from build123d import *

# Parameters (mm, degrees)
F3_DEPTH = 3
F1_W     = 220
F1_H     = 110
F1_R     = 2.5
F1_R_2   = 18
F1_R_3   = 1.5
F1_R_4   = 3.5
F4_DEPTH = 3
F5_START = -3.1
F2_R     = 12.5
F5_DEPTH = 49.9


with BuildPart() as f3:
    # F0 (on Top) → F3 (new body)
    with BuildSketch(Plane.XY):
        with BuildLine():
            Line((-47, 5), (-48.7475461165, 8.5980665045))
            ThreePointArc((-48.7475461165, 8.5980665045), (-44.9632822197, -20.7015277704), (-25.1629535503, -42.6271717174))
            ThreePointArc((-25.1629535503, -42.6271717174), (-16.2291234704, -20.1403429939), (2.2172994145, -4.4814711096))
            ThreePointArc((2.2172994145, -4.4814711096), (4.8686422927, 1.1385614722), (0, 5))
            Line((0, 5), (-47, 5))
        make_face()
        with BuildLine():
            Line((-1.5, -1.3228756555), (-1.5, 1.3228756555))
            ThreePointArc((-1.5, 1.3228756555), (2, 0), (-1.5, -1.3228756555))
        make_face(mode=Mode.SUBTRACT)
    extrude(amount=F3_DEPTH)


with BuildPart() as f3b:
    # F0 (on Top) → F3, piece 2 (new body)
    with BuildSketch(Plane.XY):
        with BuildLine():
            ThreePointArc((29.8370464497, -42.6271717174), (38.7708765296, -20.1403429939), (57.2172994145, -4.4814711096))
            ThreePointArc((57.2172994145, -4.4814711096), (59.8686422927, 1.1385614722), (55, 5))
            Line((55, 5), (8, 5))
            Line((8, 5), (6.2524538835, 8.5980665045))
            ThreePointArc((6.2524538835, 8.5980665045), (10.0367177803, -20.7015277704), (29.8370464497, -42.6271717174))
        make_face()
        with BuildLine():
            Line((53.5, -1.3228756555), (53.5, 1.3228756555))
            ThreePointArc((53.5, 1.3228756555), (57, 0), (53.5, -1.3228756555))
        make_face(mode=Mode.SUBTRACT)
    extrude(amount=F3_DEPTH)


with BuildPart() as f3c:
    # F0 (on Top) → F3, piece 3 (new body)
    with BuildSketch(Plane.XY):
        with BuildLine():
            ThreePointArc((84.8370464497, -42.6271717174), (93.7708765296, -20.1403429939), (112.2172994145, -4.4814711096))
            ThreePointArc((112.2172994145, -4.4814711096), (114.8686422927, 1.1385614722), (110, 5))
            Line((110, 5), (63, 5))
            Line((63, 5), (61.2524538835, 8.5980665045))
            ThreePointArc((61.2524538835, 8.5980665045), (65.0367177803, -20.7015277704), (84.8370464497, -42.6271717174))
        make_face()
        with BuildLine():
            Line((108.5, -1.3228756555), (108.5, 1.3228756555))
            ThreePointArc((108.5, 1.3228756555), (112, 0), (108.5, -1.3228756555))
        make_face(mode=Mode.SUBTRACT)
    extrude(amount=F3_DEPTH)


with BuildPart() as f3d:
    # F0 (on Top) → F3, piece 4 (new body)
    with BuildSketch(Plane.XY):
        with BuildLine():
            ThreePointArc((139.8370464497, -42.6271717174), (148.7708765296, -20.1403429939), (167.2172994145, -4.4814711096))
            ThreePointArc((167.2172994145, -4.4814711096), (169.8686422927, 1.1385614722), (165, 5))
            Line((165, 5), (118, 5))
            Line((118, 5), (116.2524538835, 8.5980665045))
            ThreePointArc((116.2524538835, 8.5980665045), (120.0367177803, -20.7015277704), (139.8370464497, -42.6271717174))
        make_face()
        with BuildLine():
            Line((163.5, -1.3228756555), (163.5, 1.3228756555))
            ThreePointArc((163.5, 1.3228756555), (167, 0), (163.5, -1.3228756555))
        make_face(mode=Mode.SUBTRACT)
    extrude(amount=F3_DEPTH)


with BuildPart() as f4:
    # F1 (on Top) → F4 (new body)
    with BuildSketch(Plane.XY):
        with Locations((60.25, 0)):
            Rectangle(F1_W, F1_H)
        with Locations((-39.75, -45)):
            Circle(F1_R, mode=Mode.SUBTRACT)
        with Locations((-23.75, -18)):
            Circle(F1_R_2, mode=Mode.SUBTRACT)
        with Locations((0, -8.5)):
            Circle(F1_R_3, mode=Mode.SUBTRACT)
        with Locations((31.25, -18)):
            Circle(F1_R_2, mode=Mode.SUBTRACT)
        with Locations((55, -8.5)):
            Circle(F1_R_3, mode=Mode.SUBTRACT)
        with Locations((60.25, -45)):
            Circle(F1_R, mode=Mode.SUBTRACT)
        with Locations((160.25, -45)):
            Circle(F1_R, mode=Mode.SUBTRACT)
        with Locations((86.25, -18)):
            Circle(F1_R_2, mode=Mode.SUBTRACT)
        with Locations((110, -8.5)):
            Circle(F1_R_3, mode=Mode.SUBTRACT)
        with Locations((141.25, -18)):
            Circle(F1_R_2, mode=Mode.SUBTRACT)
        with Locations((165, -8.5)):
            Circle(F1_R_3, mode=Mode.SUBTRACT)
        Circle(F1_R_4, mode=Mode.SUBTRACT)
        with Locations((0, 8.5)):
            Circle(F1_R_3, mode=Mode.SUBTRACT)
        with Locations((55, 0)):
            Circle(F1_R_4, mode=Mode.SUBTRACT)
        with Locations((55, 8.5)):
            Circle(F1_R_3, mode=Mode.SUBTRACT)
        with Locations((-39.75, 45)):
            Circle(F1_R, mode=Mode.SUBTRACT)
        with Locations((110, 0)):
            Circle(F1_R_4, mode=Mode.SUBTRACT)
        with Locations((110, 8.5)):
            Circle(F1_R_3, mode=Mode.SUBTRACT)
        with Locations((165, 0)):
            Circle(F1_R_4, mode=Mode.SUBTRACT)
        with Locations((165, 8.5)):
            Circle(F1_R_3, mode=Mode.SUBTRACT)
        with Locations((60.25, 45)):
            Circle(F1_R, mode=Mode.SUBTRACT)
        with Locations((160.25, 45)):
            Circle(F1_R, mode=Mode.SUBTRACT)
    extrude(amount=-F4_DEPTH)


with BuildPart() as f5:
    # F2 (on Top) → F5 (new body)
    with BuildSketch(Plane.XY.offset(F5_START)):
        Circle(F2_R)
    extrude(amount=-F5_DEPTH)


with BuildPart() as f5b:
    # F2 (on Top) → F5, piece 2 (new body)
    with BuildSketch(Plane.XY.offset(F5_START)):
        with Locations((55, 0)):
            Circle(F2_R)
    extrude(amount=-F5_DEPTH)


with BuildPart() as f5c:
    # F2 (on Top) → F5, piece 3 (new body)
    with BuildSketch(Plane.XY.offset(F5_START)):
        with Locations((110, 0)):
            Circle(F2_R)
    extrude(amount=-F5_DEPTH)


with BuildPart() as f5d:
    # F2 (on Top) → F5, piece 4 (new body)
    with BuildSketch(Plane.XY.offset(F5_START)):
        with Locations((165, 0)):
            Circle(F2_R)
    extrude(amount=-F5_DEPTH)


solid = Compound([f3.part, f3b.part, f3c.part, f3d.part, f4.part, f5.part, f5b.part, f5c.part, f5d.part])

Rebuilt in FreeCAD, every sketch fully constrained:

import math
import FreeCAD as App
import Part
import Sketcher

V = App.Vector
Q = App.Units.Quantity


def add_polygon(sketch, points):
    """Adds a closed chain of lines whose ends are joined by coincident constraints."""
    first, n = sketch.GeometryCount, len(points)
    for a, b in zip(points, points[1:] + points[:1]):
        sketch.addGeometry(Part.LineSegment(App.Vector(*a, 0), App.Vector(*b, 0)), False)
    for i in range(n):
        sketch.addConstraint(Sketcher.Constraint("Coincident", first + i, 2, first + (i + 1) % n, 1))

doc = App.newDocument("Part")
body = doc.addObject("PartDesign::Body", "Body")

sketch1 = body.newObject("Sketcher::SketchObject", "Sketch")
sketch1.AttachmentSupport = (doc.getObject("XY_Plane"), [""])
sketch1.MapMode = "FlatFace"
sketch1.addGeometry(Part.LineSegment(V(-47, 5, 0), V(-48.747546, 8.598067, 0)), False)
sketch1.addGeometry(Part.ArcOfCircle(Part.Circle(V(0, 0, 0), V(0, 0, 1), 49.5), math.radians(169.997083), math.radians(239.446513)), False)
sketch1.addGeometry(Part.ArcOfCircle(Part.Circle(V(24.390294, -49.296182, 0), V(0, 0, 1), 50), math.radians(116.324845), math.radians(172.335034)), False)
sketch1.addGeometry(Part.ArcOfCircle(Part.Circle(V(0, 0, 0), V(0, 0, 1), 5), math.radians(-63.675155), math.radians(90)), False)
sketch1.addGeometry(Part.LineSegment(V(0, 5, 0), V(-47, 5, 0)), False)
sketch1.addGeometry(Part.ArcOfCircle(Part.Circle(V(0, 0, 0), V(0, 0, 1), 2), math.radians(-138.590378), math.radians(138.590378)), False)
sketch1.addGeometry(Part.LineSegment(V(-1.5, -1.322876, 0), V(-1.5, 1.322876, 0)), False)
sketch1.addConstraint(Sketcher.Constraint("Coincident", 0, 2, 1, 1))
sketch1.addConstraint(Sketcher.Constraint("Coincident", 1, 2, 2, 2))
sketch1.addConstraint(Sketcher.Constraint("Tangent", 2, 1, 3, 1))
sketch1.addConstraint(Sketcher.Constraint("Tangent", 3, 2, 4, 1))
sketch1.addConstraint(Sketcher.Constraint("Coincident", 4, 2, 0, 1))
sketch1.addConstraint(Sketcher.Constraint("Coincident", 5, 1, 6, 1))
sketch1.addConstraint(Sketcher.Constraint("Coincident", 6, 2, 5, 2))
sketch1.addConstraint(Sketcher.Constraint("Horizontal", 4))
sketch1.addConstraint(Sketcher.Constraint("Vertical", 6))
sketch1.addConstraint(Sketcher.Constraint("Coincident", 1, 3, -1, 1))
sketch1.addConstraint(Sketcher.Constraint("Coincident", 3, 3, -1, 1))
sketch1.addConstraint(Sketcher.Constraint("Coincident", 5, 3, -1, 1))
sketch1.addConstraint(Sketcher.Constraint("Radius", 2, Q("50 mm")))
sketch1.addConstraint(Sketcher.Constraint("Radius", 3, Q("5 mm")))
sketch1.addConstraint(Sketcher.Constraint("Radius", 5, Q("2 mm")))
sketch1.addConstraint(Sketcher.Constraint("Radius", 1, Q("49.5 mm")))
sketch1.addConstraint(Sketcher.Constraint("DistanceX", 4, 2, 4, 1, Q("47 mm")))
sketch1.addConstraint(Sketcher.Constraint("Distance", 0, Q("4 mm")))
sketch1.addConstraint(Sketcher.Constraint("DistanceX", 5, 1, -1, 1, Q("1.5 mm")))
sketch1.addConstraint(Sketcher.Constraint("DistanceY", 1, 2, 2, 1, Q("38.145701 mm")))
pad1 = body.newObject("PartDesign::Pad", "Pad")
pad1.Profile = sketch1
pad1.Length = 3
body2 = doc.addObject("PartDesign::Body", "Body001")

sketch2 = body2.newObject("Sketcher::SketchObject", "Sketch001")
sketch2.AttachmentSupport = (doc.getObject("XY_Plane001"), [""])
sketch2.MapMode = "FlatFace"
sketch2.addGeometry(Part.ArcOfCircle(Part.Circle(V(79.390294, -49.296182, 0), V(0, 0, 1), 50), math.radians(116.324845), math.radians(172.335034)), False)
sketch2.addGeometry(Part.ArcOfCircle(Part.Circle(V(55, 0, 0), V(0, 0, 1), 5), math.radians(-63.675155), math.radians(90)), False)
sketch2.addGeometry(Part.LineSegment(V(55, 5, 0), V(8, 5, 0)), False)
sketch2.addGeometry(Part.LineSegment(V(8, 5, 0), V(6.252454, 8.598067, 0)), False)
sketch2.addGeometry(Part.ArcOfCircle(Part.Circle(V(55, 0, 0), V(0, 0, 1), 49.5), math.radians(169.997083), math.radians(239.446513)), False)
sketch2.addGeometry(Part.ArcOfCircle(Part.Circle(V(55, 0, 0), V(0, 0, 1), 2), math.radians(-138.590378), math.radians(138.590378)), False)
sketch2.addGeometry(Part.LineSegment(V(53.5, -1.322876, 0), V(53.5, 1.322876, 0)), False)
sketch2.addConstraint(Sketcher.Constraint("Tangent", 0, 1, 1, 1))
sketch2.addConstraint(Sketcher.Constraint("Tangent", 1, 2, 2, 1))
sketch2.addConstraint(Sketcher.Constraint("Coincident", 2, 2, 3, 1))
sketch2.addConstraint(Sketcher.Constraint("Coincident", 3, 2, 4, 1))
sketch2.addConstraint(Sketcher.Constraint("Coincident", 4, 2, 0, 2))
sketch2.addConstraint(Sketcher.Constraint("Coincident", 5, 1, 6, 1))
sketch2.addConstraint(Sketcher.Constraint("Coincident", 6, 2, 5, 2))
sketch2.addConstraint(Sketcher.Constraint("Horizontal", 2))
sketch2.addConstraint(Sketcher.Constraint("Vertical", 6))
sketch2.addConstraint(Sketcher.Constraint("Coincident", 4, 3, 1, 3))
sketch2.addConstraint(Sketcher.Constraint("Coincident", 5, 3, 1, 3))
sketch2.addConstraint(Sketcher.Constraint("PointOnObject", 1, 3, -1))
sketch2.addConstraint(Sketcher.Constraint("Radius", 0, Q("50 mm")))
sketch2.addConstraint(Sketcher.Constraint("Radius", 1, Q("5 mm")))
sketch2.addConstraint(Sketcher.Constraint("Radius", 5, Q("2 mm")))
sketch2.addConstraint(Sketcher.Constraint("Radius", 4, Q("49.5 mm")))
sketch2.addConstraint(Sketcher.Constraint("DistanceX", 2, 2, 2, 1, Q("47 mm")))
sketch2.addConstraint(Sketcher.Constraint("Distance", 3, Q("4 mm")))
sketch2.addConstraint(Sketcher.Constraint("DistanceX", -1, 1, 1, 3, Q("55 mm")))
sketch2.addConstraint(Sketcher.Constraint("DistanceX", -1, 1, 5, 1, Q("53.5 mm")))
sketch2.addConstraint(Sketcher.Constraint("DistanceY", 4, 2, 0, 1, Q("38.145701 mm")))
pad2 = body2.newObject("PartDesign::Pad", "Pad001")
pad2.Profile = sketch2
pad2.Length = 3
body3 = doc.addObject("PartDesign::Body", "Body002")

sketch3 = body3.newObject("Sketcher::SketchObject", "Sketch002")
sketch3.AttachmentSupport = (doc.getObject("XY_Plane002"), [""])
sketch3.MapMode = "FlatFace"
sketch3.addGeometry(Part.ArcOfCircle(Part.Circle(V(134.390294, -49.296182, 0), V(0, 0, 1), 50), math.radians(116.324845), math.radians(172.335034)), False)
sketch3.addGeometry(Part.ArcOfCircle(Part.Circle(V(110, 0, 0), V(0, 0, 1), 5), math.radians(-63.675155), math.radians(90)), False)
sketch3.addGeometry(Part.LineSegment(V(110, 5, 0), V(63, 5, 0)), False)
sketch3.addGeometry(Part.LineSegment(V(63, 5, 0), V(61.252454, 8.598067, 0)), False)
sketch3.addGeometry(Part.ArcOfCircle(Part.Circle(V(110, 0, 0), V(0, 0, 1), 49.5), math.radians(169.997083), math.radians(239.446513)), False)
sketch3.addGeometry(Part.ArcOfCircle(Part.Circle(V(110, 0, 0), V(0, 0, 1), 2), math.radians(-138.590378), math.radians(138.590378)), False)
sketch3.addGeometry(Part.LineSegment(V(108.5, -1.322876, 0), V(108.5, 1.322876, 0)), False)
sketch3.addConstraint(Sketcher.Constraint("Tangent", 0, 1, 1, 1))
sketch3.addConstraint(Sketcher.Constraint("Tangent", 1, 2, 2, 1))
sketch3.addConstraint(Sketcher.Constraint("Coincident", 2, 2, 3, 1))
sketch3.addConstraint(Sketcher.Constraint("Coincident", 3, 2, 4, 1))
sketch3.addConstraint(Sketcher.Constraint("Coincident", 4, 2, 0, 2))
sketch3.addConstraint(Sketcher.Constraint("Coincident", 5, 1, 6, 1))
sketch3.addConstraint(Sketcher.Constraint("Coincident", 6, 2, 5, 2))
sketch3.addConstraint(Sketcher.Constraint("Horizontal", 2))
sketch3.addConstraint(Sketcher.Constraint("Vertical", 6))
sketch3.addConstraint(Sketcher.Constraint("Coincident", 4, 3, 1, 3))
sketch3.addConstraint(Sketcher.Constraint("Coincident", 5, 3, 1, 3))
sketch3.addConstraint(Sketcher.Constraint("PointOnObject", 1, 3, -1))
sketch3.addConstraint(Sketcher.Constraint("Radius", 0, Q("50 mm")))
sketch3.addConstraint(Sketcher.Constraint("Radius", 1, Q("5 mm")))
sketch3.addConstraint(Sketcher.Constraint("Radius", 5, Q("2 mm")))
sketch3.addConstraint(Sketcher.Constraint("Radius", 4, Q("49.5 mm")))
sketch3.addConstraint(Sketcher.Constraint("DistanceX", 2, 2, 2, 1, Q("47 mm")))
sketch3.addConstraint(Sketcher.Constraint("Distance", 3, Q("4 mm")))
sketch3.addConstraint(Sketcher.Constraint("DistanceX", -1, 1, 1, 3, Q("110 mm")))
sketch3.addConstraint(Sketcher.Constraint("DistanceX", -1, 1, 5, 1, Q("108.5 mm")))
sketch3.addConstraint(Sketcher.Constraint("DistanceY", 4, 2, 0, 1, Q("38.145701 mm")))
pad3 = body3.newObject("PartDesign::Pad", "Pad002")
pad3.Profile = sketch3
pad3.Length = 3
body4 = doc.addObject("PartDesign::Body", "Body003")

sketch4 = body4.newObject("Sketcher::SketchObject", "Sketch003")
sketch4.AttachmentSupport = (doc.getObject("XY_Plane003"), [""])
sketch4.MapMode = "FlatFace"
sketch4.addGeometry(Part.ArcOfCircle(Part.Circle(V(189.390294, -49.296182, 0), V(0, 0, 1), 50), math.radians(116.324845), math.radians(172.335034)), False)
sketch4.addGeometry(Part.ArcOfCircle(Part.Circle(V(165, 0, 0), V(0, 0, 1), 5), math.radians(-63.675155), math.radians(90)), False)
sketch4.addGeometry(Part.LineSegment(V(165, 5, 0), V(118, 5, 0)), False)
sketch4.addGeometry(Part.LineSegment(V(118, 5, 0), V(116.252454, 8.598067, 0)), False)
sketch4.addGeometry(Part.ArcOfCircle(Part.Circle(V(165, 0, 0), V(0, 0, 1), 49.5), math.radians(169.997083), math.radians(239.446513)), False)
sketch4.addGeometry(Part.ArcOfCircle(Part.Circle(V(165, 0, 0), V(0, 0, 1), 2), math.radians(-138.590378), math.radians(138.590378)), False)
sketch4.addGeometry(Part.LineSegment(V(163.5, -1.322876, 0), V(163.5, 1.322876, 0)), False)
sketch4.addConstraint(Sketcher.Constraint("Tangent", 0, 1, 1, 1))
sketch4.addConstraint(Sketcher.Constraint("Tangent", 1, 2, 2, 1))
sketch4.addConstraint(Sketcher.Constraint("Coincident", 2, 2, 3, 1))
sketch4.addConstraint(Sketcher.Constraint("Coincident", 3, 2, 4, 1))
sketch4.addConstraint(Sketcher.Constraint("Coincident", 4, 2, 0, 2))
sketch4.addConstraint(Sketcher.Constraint("Coincident", 5, 1, 6, 1))
sketch4.addConstraint(Sketcher.Constraint("Coincident", 6, 2, 5, 2))
sketch4.addConstraint(Sketcher.Constraint("Horizontal", 2))
sketch4.addConstraint(Sketcher.Constraint("Vertical", 6))
sketch4.addConstraint(Sketcher.Constraint("Coincident", 4, 3, 1, 3))
sketch4.addConstraint(Sketcher.Constraint("Coincident", 5, 3, 1, 3))
sketch4.addConstraint(Sketcher.Constraint("PointOnObject", 1, 3, -1))
sketch4.addConstraint(Sketcher.Constraint("Radius", 0, Q("50 mm")))
sketch4.addConstraint(Sketcher.Constraint("Radius", 1, Q("5 mm")))
sketch4.addConstraint(Sketcher.Constraint("Radius", 5, Q("2 mm")))
sketch4.addConstraint(Sketcher.Constraint("Radius", 4, Q("49.5 mm")))
sketch4.addConstraint(Sketcher.Constraint("DistanceX", 2, 2, 2, 1, Q("47 mm")))
sketch4.addConstraint(Sketcher.Constraint("Distance", 3, Q("4 mm")))
sketch4.addConstraint(Sketcher.Constraint("DistanceX", -1, 1, 1, 3, Q("165 mm")))
sketch4.addConstraint(Sketcher.Constraint("DistanceX", -1, 1, 5, 1, Q("163.5 mm")))
sketch4.addConstraint(Sketcher.Constraint("DistanceY", 4, 2, 0, 1, Q("38.145701 mm")))
pad4 = body4.newObject("PartDesign::Pad", "Pad003")
pad4.Profile = sketch4
pad4.Length = 3
body5 = doc.addObject("PartDesign::Body", "Body004")

sketch5 = body5.newObject("Sketcher::SketchObject", "Sketch004")
sketch5.AttachmentSupport = (doc.getObject("XY_Plane004"), [""])
sketch5.MapMode = "FlatFace"
add_polygon(sketch5, [(-49.75, 55), (-49.75, -55), (170.25, -55), (170.25, 55)])
sketch5.addGeometry(Part.Circle(V(-39.75, -45, 0), V(0, 0, 1), 2.5), False)
sketch5.addGeometry(Part.Circle(V(60.25, -45, 0), V(0, 0, 1), 2.5), False)
sketch5.addGeometry(Part.Circle(V(-23.75, -18, 0), V(0, 0, 1), 18), False)
sketch5.addGeometry(Part.Circle(V(0, -8.5, 0), V(0, 0, 1), 1.5), False)
sketch5.addGeometry(Part.Circle(V(31.25, -18, 0), V(0, 0, 1), 18), False)
sketch5.addGeometry(Part.Circle(V(55, -8.5, 0), V(0, 0, 1), 1.5), False)
sketch5.addGeometry(Part.Circle(V(160.25, -45, 0), V(0, 0, 1), 2.5), False)
sketch5.addGeometry(Part.Circle(V(86.25, -18, 0), V(0, 0, 1), 18), False)
sketch5.addGeometry(Part.Circle(V(110, -8.5, 0), V(0, 0, 1), 1.5), False)
sketch5.addGeometry(Part.Circle(V(141.25, -18, 0), V(0, 0, 1), 18), False)
sketch5.addGeometry(Part.Circle(V(165, -8.5, 0), V(0, 0, 1), 1.5), False)
sketch5.addGeometry(Part.Circle(V(0, 0, 0), V(0, 0, 1), 3.5), False)
sketch5.addGeometry(Part.Circle(V(0, 8.5, 0), V(0, 0, 1), 1.5), False)
sketch5.addGeometry(Part.Circle(V(55, 0, 0), V(0, 0, 1), 3.5), False)
sketch5.addGeometry(Part.Circle(V(55, 8.5, 0), V(0, 0, 1), 1.5), False)
sketch5.addGeometry(Part.Circle(V(-39.75, 45, 0), V(0, 0, 1), 2.5), False)
sketch5.addGeometry(Part.Circle(V(60.25, 45, 0), V(0, 0, 1), 2.5), False)
sketch5.addGeometry(Part.Circle(V(110, 0, 0), V(0, 0, 1), 3.5), False)
sketch5.addGeometry(Part.Circle(V(110, 8.5, 0), V(0, 0, 1), 1.5), False)
sketch5.addGeometry(Part.Circle(V(165, 0, 0), V(0, 0, 1), 3.5), False)
sketch5.addGeometry(Part.Circle(V(165, 8.5, 0), V(0, 0, 1), 1.5), False)
sketch5.addGeometry(Part.Circle(V(160.25, 45, 0), V(0, 0, 1), 2.5), False)
sketch5.addConstraint(Sketcher.Constraint("Vertical", 0))
sketch5.addConstraint(Sketcher.Constraint("Horizontal", 1))
sketch5.addConstraint(Sketcher.Constraint("Vertical", 2))
sketch5.addConstraint(Sketcher.Constraint("Horizontal", 3))
sketch5.addConstraint(Sketcher.Constraint("Coincident", 15, 3, -1, 1))
sketch5.addConstraint(Sketcher.Constraint("Equal", 4, 5))
sketch5.addConstraint(Sketcher.Constraint("Equal", 6, 8))
sketch5.addConstraint(Sketcher.Constraint("Equal", 7, 9))
sketch5.addConstraint(Sketcher.Constraint("Equal", 5, 10))
sketch5.addConstraint(Sketcher.Constraint("Equal", 8, 11))
sketch5.addConstraint(Sketcher.Constraint("Equal", 9, 12))
sketch5.addConstraint(Sketcher.Constraint("Equal", 11, 13))
sketch5.addConstraint(Sketcher.Constraint("Equal", 12, 14))
sketch5.addConstraint(Sketcher.Constraint("Equal", 14, 16))
sketch5.addConstraint(Sketcher.Constraint("Equal", 15, 17))
sketch5.addConstraint(Sketcher.Constraint("Equal", 16, 18))
sketch5.addConstraint(Sketcher.Constraint("Equal", 10, 19))
sketch5.addConstraint(Sketcher.Constraint("Equal", 19, 20))
sketch5.addConstraint(Sketcher.Constraint("Equal", 17, 21))
sketch5.addConstraint(Sketcher.Constraint("Equal", 18, 22))
sketch5.addConstraint(Sketcher.Constraint("Equal", 21, 23))
sketch5.addConstraint(Sketcher.Constraint("Equal", 22, 24))
sketch5.addConstraint(Sketcher.Constraint("Equal", 20, 25))
sketch5.addConstraint(Sketcher.Constraint("Symmetric", 7, 3, 16, 3, -1, 1))
sketch5.addConstraint(Sketcher.Constraint("Symmetric", 9, 3, 18, 3, -1))
sketch5.addConstraint(Sketcher.Constraint("Symmetric", 4, 3, 19, 3, -1))
sketch5.addConstraint(Sketcher.Constraint("Symmetric", 5, 3, 20, 3, -1))
sketch5.addConstraint(Sketcher.Constraint("Symmetric", 12, 3, 22, 3, -1))
sketch5.addConstraint(Sketcher.Constraint("Symmetric", 14, 3, 24, 3, -1))
sketch5.addConstraint(Sketcher.Constraint("Symmetric", 10, 3, 25, 3, -1))
sketch5.addConstraint(Sketcher.Constraint("PointOnObject", 7, 3, -2))
sketch5.addConstraint(Sketcher.Constraint("PointOnObject", 17, 3, -1))
sketch5.addConstraint(Sketcher.Constraint("PointOnObject", 21, 3, -1))
sketch5.addConstraint(Sketcher.Constraint("PointOnObject", 23, 3, -1))
sketch5.addConstraint(Sketcher.Constraint("Horizontal", 4, 3, 5, 3))
sketch5.addConstraint(Sketcher.Constraint("Horizontal", 6, 3, 8, 3))
sketch5.addConstraint(Sketcher.Constraint("Horizontal", 7, 3, 9, 3))
sketch5.addConstraint(Sketcher.Constraint("Horizontal", 5, 3, 10, 3))
sketch5.addConstraint(Sketcher.Constraint("Horizontal", 8, 3, 11, 3))
sketch5.addConstraint(Sketcher.Constraint("Horizontal", 9, 3, 12, 3))
sketch5.addConstraint(Sketcher.Constraint("Horizontal", 11, 3, 13, 3))
sketch5.addConstraint(Sketcher.Constraint("Horizontal", 12, 3, 14, 3))
sketch5.addConstraint(Sketcher.Constraint("Vertical", 9, 3, 17, 3))
sketch5.addConstraint(Sketcher.Constraint("Vertical", 12, 3, 21, 3))
sketch5.addConstraint(Sketcher.Constraint("Vertical", 14, 3, 23, 3))
sketch5.addConstraint(Sketcher.Constraint("Diameter", 4, Q("5 mm")))
sketch5.addConstraint(Sketcher.Constraint("Diameter", 6, Q("36 mm")))
sketch5.addConstraint(Sketcher.Constraint("Diameter", 7, Q("3 mm")))
sketch5.addConstraint(Sketcher.Constraint("Diameter", 15, Q("7 mm")))
sketch5.addConstraint(Sketcher.Constraint("DistanceX", 1, 1, 1, 2, Q("220 mm")))
sketch5.addConstraint(Sketcher.Constraint("DistanceY", 0, 2, 0, 1, Q("110 mm")))
sketch5.addConstraint(Sketcher.Constraint("DistanceY", 4, 3, -1, 1, Q("45 mm")))
sketch5.addConstraint(Sketcher.Constraint("DistanceY", 6, 3, -1, 1, Q("18 mm")))
sketch5.addConstraint(Sketcher.Constraint("DistanceX", -1, 1, 9, 3, Q("55 mm")))
sketch5.addConstraint(Sketcher.Constraint("DistanceX", -1, 1, 12, 3, Q("110 mm")))
sketch5.addConstraint(Sketcher.Constraint("DistanceX", -1, 1, 14, 3, Q("165 mm")))
sketch5.addConstraint(Sketcher.Constraint("DistanceY", 0, 2, -1, 1, Q("55 mm")))
sketch5.addConstraint(Sketcher.Constraint("DistanceX", 4, 3, 5, 3, Q("100 mm")))
sketch5.addConstraint(Sketcher.Constraint("DistanceX", 4, 3, 6, 3, Q("16 mm")))
sketch5.addConstraint(Sketcher.Constraint("DistanceX", 8, 3, 5, 3, Q("29 mm")))
sketch5.addConstraint(Sketcher.Constraint("DistanceX", 5, 3, 10, 3, Q("100 mm")))
sketch5.addConstraint(Sketcher.Constraint("DistanceX", 5, 3, 11, 3, Q("26 mm")))
sketch5.addConstraint(Sketcher.Constraint("DistanceX", 13, 3, 10, 3, Q("19 mm")))
sketch5.addConstraint(Sketcher.Constraint("DistanceY", 7, 3, 16, 3, Q("17 mm")))
sketch5.addConstraint(Sketcher.Constraint("DistanceX", 0, 2, 4, 3, Q("10 mm")))
sketch5.addConstraint(Sketcher.Constraint("DistanceX", 4, 3, -1, 1, Q("39.75 mm")))
pad5 = body5.newObject("PartDesign::Pad", "Pad004")
pad5.Profile = sketch5
pad5.Length = 3
pad5.Reversed = True
body6 = doc.addObject("PartDesign::Body", "Body005")

sketch6 = body6.newObject("Sketcher::SketchObject", "Sketch005")
sketch6.AttachmentSupport = (doc.getObject("XY_Plane005"), [""])
sketch6.MapMode = "FlatFace"
sketch6.AttachmentOffset = App.Placement(V(0, 0, -3.1), App.Rotation())
sketch6.addGeometry(Part.Circle(V(0, 0, 0), V(0, 0, 1), 12.5), False)
sketch6.addConstraint(Sketcher.Constraint("Coincident", 0, 3, -1, 1))
sketch6.addConstraint(Sketcher.Constraint("Diameter", 0, Q("25 mm")))
pad6 = body6.newObject("PartDesign::Pad", "Pad005")
pad6.Profile = sketch6
pad6.Length = 49.9
pad6.Reversed = True
body7 = doc.addObject("PartDesign::Body", "Body006")

sketch7 = body7.newObject("Sketcher::SketchObject", "Sketch006")
sketch7.AttachmentSupport = (doc.getObject("XY_Plane006"), [""])
sketch7.MapMode = "FlatFace"
sketch7.AttachmentOffset = App.Placement(V(0, 0, -3.1), App.Rotation())
sketch7.addGeometry(Part.Circle(V(55, 0, 0), V(0, 0, 1), 12.5), False)
sketch7.addConstraint(Sketcher.Constraint("PointOnObject", 0, 3, -1))
sketch7.addConstraint(Sketcher.Constraint("Diameter", 0, Q("25 mm")))
sketch7.addConstraint(Sketcher.Constraint("DistanceX", -1, 1, 0, 3, Q("55 mm")))
pad7 = body7.newObject("PartDesign::Pad", "Pad006")
pad7.Profile = sketch7
pad7.Length = 49.9
pad7.Reversed = True
body8 = doc.addObject("PartDesign::Body", "Body007")

sketch8 = body8.newObject("Sketcher::SketchObject", "Sketch007")
sketch8.AttachmentSupport = (doc.getObject("XY_Plane007"), [""])
sketch8.MapMode = "FlatFace"
sketch8.AttachmentOffset = App.Placement(V(0, 0, -3.1), App.Rotation())
sketch8.addGeometry(Part.Circle(V(110, 0, 0), V(0, 0, 1), 12.5), False)
sketch8.addConstraint(Sketcher.Constraint("PointOnObject", 0, 3, -1))
sketch8.addConstraint(Sketcher.Constraint("Diameter", 0, Q("25 mm")))
sketch8.addConstraint(Sketcher.Constraint("DistanceX", -1, 1, 0, 3, Q("110 mm")))
pad8 = body8.newObject("PartDesign::Pad", "Pad007")
pad8.Profile = sketch8
pad8.Length = 49.9
pad8.Reversed = True
body9 = doc.addObject("PartDesign::Body", "Body008")

sketch9 = body9.newObject("Sketcher::SketchObject", "Sketch008")
sketch9.AttachmentSupport = (doc.getObject("XY_Plane008"), [""])
sketch9.MapMode = "FlatFace"
sketch9.AttachmentOffset = App.Placement(V(0, 0, -3.1), App.Rotation())
sketch9.addGeometry(Part.Circle(V(165, 0, 0), V(0, 0, 1), 12.5), False)
sketch9.addConstraint(Sketcher.Constraint("PointOnObject", 0, 3, -1))
sketch9.addConstraint(Sketcher.Constraint("Diameter", 0, Q("25 mm")))
sketch9.addConstraint(Sketcher.Constraint("DistanceX", -1, 1, 0, 3, Q("165 mm")))
pad9 = body9.newObject("PartDesign::Pad", "Pad008")
pad9.Profile = sketch9
pad9.Length = 49.9
pad9.Reversed = True

doc.recompute()
